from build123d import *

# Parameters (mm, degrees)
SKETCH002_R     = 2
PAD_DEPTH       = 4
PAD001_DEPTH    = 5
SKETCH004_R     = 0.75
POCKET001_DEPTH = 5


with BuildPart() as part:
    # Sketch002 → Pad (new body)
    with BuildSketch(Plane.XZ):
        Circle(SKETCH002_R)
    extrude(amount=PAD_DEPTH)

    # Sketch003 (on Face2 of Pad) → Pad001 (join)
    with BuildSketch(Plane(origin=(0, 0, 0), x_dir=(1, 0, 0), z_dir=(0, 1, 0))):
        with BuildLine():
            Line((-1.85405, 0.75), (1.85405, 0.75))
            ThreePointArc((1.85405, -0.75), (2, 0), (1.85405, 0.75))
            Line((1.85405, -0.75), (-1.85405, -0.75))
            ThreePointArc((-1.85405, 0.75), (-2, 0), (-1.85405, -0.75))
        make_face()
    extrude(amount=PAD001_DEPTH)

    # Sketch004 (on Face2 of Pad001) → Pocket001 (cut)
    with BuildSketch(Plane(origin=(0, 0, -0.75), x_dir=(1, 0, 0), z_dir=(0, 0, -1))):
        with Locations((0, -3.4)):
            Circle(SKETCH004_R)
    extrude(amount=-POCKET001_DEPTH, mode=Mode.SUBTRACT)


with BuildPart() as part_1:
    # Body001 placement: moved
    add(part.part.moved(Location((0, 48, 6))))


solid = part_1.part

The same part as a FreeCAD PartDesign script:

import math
import FreeCAD as App
import Part
import Sketcher

V = App.Vector

doc = App.newDocument("Part")
body = doc.addObject("PartDesign::Body", "Body")

# Sketch on XZ plane
sketch1 = body.newObject("Sketcher::SketchObject", "Sketch")
sketch1.AttachmentSupport = (doc.getObject("XZ_Plane"), [""])
sketch1.MapMode = "FlatFace"
sketch1.addGeometry(Part.Circle(V(0, 0, 0), V(0, 0, 1), 2), False)
sketch1.addConstraint(Sketcher.Constraint("Coincident", 0, 3, -1, 1))
sketch1.addConstraint(Sketcher.Constraint("Diameter", 0, 4.0))
pad1 = body.newObject("PartDesign::Pad", "Pad")
pad1.Profile = sketch1
pad1.Length = 4

# Sketch on XZ plane
sketch2 = body.newObject("Sketcher::SketchObject", "Sketch001")
sketch2.AttachmentSupport = (doc.getObject("XZ_Plane"), [""])
sketch2.MapMode = "FlatFace"
sketch2.addGeometry(Part.LineSegment(V(1.9, -0.8, 0), V(-1.9, -0.8, 0)), False)
sketch2.addGeometry(Part.ArcOfCircle(Part.Circle(V(0, 0, 0), V(0, 0, 1), 2), math.radians(158), math.radians(202)), False)
sketch2.addGeometry(Part.LineSegment(V(-1.9, 0.8, 0), V(1.9, 0.8, 0)), False)
sketch2.addGeometry(Part.ArcOfCircle(Part.Circle(V(0, 0, 0), V(0, 0, 1), 2), math.radians(-22), math.radians(22)), False)
sketch2.addConstraint(Sketcher.Constraint("Coincident", 0, 2, 1, 2))
sketch2.addConstraint(Sketcher.Constraint("Coincident", 1, 1, 2, 1))
sketch2.addConstraint(Sketcher.Constraint("Coincident", 2, 2, 3, 2))
sketch2.addConstraint(Sketcher.Constraint("Coincident", 3, 1, 0, 1))
sketch2.addConstraint(Sketcher.Constraint("Horizontal", 0))
sketch2.addConstraint(Sketcher.Constraint("Horizontal", 2))
sketch2.addConstraint(Sketcher.Constraint("Coincident", 1, 3, -1, 1))
sketch2.addConstraint(Sketcher.Constraint("Coincident", 3, 3, -1, 1))
sketch2.addConstraint(Sketcher.Constraint("Equal", 1, 3))
sketch2.addConstraint(Sketcher.Constraint("Vertical", 0, 2, 1, 1))
sketch2.addConstraint(Sketcher.Constraint("DistanceY", 0, 2, 1, 1, 1.5))
sketch2.addConstraint(Sketcher.Constraint("DistanceX", 0, 2, 0, 1, 3.7081))
pad2 = body.newObject("PartDesign::Pad", "Pad001")
pad2.Profile = sketch2
pad2.Length = 5
pad2.Reversed = True

# Sketch on XY plane
sketch3 = body.newObject("Sketcher::SketchObject", "Sketch002")
sketch3.AttachmentSupport = (doc.getObject("XY_Plane"), [""])
sketch3.MapMode = "FlatFace"
sketch3.AttachmentOffset = App.Placement(V(0, 0, -0.75), App.Rotation())
sketch3.addGeometry(Part.Circle(V(0, 3.4, 0), V(0, 0, 1), 0.8), False)
sketch3.addConstraint(Sketcher.Constraint("PointOnObject", 0, 3, -2))
sketch3.addConstraint(Sketcher.Constraint("Diameter", 0, 1.5))
sketch3.addConstraint(Sketcher.Constraint("DistanceY", -1, 1, 0, 3, 3.4))
pocket1 = body.newObject("PartDesign::Pocket", "Pocket")
pocket1.Profile = sketch3
pocket1.Length = 5
pocket1.Reversed = True
body2 = doc.addObject("PartDesign::Body", "Body001")
doc.recompute()

body.Placement = App.Placement(V(0, 48, 6), App.Rotation(V(0, 0, 1), 0))
boolean = body2.newObject("PartDesign::Boolean", "Boolean")
boolean.Type = "Fuse"
boolean.addObjects([body])

doc.recompute()
